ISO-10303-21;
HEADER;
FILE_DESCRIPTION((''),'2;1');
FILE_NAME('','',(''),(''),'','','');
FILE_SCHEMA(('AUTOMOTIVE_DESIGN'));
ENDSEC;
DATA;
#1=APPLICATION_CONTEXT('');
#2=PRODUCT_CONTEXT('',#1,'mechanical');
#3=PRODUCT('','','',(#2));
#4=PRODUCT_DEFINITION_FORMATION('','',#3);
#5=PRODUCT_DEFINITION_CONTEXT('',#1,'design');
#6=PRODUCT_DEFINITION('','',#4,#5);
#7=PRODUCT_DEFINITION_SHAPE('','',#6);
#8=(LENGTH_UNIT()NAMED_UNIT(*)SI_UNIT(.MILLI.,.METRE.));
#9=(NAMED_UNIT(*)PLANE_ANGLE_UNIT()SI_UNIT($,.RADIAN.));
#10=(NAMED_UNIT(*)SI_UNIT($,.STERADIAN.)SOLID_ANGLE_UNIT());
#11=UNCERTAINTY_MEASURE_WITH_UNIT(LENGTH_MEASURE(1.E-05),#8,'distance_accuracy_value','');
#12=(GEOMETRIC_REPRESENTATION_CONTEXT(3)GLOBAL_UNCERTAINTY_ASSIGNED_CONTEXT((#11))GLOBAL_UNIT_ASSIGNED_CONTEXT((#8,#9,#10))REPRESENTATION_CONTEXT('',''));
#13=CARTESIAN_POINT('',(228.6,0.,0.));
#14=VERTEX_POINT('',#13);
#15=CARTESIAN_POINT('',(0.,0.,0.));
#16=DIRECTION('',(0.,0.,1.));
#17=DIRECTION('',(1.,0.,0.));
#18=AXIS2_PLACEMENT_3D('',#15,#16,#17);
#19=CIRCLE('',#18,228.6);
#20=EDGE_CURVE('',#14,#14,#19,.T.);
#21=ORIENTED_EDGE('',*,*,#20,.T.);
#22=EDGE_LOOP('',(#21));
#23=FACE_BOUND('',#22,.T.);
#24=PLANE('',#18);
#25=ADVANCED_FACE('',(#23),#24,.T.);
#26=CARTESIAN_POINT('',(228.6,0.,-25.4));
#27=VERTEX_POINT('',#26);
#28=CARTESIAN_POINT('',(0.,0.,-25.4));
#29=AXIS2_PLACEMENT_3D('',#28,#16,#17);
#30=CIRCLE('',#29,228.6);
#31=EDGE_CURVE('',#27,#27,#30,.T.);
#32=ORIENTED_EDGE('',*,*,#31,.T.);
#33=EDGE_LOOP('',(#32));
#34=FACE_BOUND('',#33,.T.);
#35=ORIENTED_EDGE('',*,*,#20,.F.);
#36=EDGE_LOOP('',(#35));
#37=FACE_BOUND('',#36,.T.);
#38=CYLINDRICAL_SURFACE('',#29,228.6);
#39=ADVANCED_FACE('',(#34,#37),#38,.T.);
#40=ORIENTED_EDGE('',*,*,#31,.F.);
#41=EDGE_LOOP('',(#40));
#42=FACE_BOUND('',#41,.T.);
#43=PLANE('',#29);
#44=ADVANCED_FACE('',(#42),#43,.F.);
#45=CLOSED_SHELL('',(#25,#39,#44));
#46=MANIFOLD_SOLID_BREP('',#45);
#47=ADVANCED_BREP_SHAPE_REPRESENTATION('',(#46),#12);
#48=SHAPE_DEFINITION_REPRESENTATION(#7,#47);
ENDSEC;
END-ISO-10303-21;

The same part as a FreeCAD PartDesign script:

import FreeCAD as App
import Part
import Sketcher
from FreeCAD import Vector
Q = App.Units.Quantity

doc = App.newDocument("Part")
body = doc.addObject("PartDesign::Body", "Body")

sketch1 = doc.addObject("Sketcher::SketchObject", "Sketch")
body.addObject(sketch1)
sketch1.AttachmentSupport = (doc.XY_Plane, [""])
sketch1.MapMode = "FlatFace"
sketch1.addGeometry(Part.Circle(Vector(0, 0, 0), Vector(0, 0, 1), 228.6), False)
sketch1.addConstraint([
    Sketcher.Constraint("Coincident", 0, 3, -1, 1),
    Sketcher.Constraint("Diameter", 0, Q("18 in")),
])
pad1 = doc.addObject("PartDesign::Pad", "Pad")
body.addObject(pad1)
pad1.Profile = sketch1
pad1.Length = Q("1 in")
pad1.Reversed = True

doc.recompute()
